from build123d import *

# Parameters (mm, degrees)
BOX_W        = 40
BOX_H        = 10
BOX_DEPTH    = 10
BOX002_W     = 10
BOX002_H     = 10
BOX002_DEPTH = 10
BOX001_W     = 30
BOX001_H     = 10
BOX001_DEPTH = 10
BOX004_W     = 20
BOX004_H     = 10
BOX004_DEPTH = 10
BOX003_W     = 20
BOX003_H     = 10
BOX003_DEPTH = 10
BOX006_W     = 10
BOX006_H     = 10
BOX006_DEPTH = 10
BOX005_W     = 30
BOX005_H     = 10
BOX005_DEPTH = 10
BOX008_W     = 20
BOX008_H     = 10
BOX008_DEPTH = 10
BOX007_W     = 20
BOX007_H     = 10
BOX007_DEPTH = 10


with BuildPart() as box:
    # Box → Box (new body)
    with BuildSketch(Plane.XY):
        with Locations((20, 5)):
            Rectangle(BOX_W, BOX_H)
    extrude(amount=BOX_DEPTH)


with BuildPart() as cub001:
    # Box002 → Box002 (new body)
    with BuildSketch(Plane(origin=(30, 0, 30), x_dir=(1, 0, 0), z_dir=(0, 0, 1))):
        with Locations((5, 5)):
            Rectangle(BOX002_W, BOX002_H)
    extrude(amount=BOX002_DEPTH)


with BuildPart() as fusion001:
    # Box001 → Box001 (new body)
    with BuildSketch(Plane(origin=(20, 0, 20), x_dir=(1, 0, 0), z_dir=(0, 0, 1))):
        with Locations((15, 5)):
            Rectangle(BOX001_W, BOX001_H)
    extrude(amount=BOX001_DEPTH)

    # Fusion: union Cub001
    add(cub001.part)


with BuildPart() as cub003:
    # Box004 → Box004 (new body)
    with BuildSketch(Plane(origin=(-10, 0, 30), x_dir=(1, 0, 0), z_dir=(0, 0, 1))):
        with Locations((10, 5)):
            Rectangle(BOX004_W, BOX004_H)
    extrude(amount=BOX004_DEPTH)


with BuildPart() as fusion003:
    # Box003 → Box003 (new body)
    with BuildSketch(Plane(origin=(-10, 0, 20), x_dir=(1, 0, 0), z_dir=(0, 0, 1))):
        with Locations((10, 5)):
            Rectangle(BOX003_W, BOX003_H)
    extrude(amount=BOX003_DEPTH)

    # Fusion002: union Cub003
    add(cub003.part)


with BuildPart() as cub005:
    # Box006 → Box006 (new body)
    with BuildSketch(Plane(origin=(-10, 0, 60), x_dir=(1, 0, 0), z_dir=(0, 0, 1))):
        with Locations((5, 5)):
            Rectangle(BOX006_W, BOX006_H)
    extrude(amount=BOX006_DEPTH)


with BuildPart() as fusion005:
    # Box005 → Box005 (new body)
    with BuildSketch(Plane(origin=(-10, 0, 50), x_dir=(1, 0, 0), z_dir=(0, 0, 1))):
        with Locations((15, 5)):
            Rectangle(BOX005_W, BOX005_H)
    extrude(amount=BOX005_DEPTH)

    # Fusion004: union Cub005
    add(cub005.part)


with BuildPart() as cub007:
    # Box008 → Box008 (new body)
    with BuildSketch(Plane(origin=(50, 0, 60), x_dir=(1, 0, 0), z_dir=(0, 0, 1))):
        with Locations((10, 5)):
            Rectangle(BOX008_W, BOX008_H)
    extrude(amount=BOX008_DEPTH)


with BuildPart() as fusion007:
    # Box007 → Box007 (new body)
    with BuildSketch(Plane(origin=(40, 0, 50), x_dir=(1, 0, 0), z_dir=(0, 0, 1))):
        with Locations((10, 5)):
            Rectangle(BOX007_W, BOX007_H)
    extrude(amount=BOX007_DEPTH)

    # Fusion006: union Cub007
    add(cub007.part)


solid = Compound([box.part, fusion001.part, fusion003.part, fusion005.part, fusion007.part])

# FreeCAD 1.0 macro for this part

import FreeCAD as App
import Part
import Sketcher

V = App.Vector


def add_polygon(sketch, points):
    """Adds a closed chain of lines whose ends are joined by coincident constraints."""
    first, n = sketch.GeometryCount, len(points)
    for a, b in zip(points, points[1:] + points[:1]):
        sketch.addGeometry(Part.LineSegment(App.Vector(*a, 0), App.Vector(*b, 0)), False)
    for i in range(n):
        sketch.addConstraint(Sketcher.Constraint("Coincident", first + i, 2, first + (i + 1) % n, 1))

doc = App.newDocument("Part")
params = doc.addObject("Spreadsheet::Sheet", "Params")
for row, (alias, value) in enumerate([
    ("sketch1_width", "40 mm"),
    ("sketch1_height", "10 mm"),
    ("pad1_length", "10 mm"),
    ("sketch2_width", "10 mm"),
    ("pad2_length", "10 mm"),
    ("sketch3_width", "30 mm"),
    ("sketch3_height", "10 mm"),
    ("pad3_length", "10 mm"),
    ("sketch4_width", "20 mm"),
    ("sketch4_height", "10 mm"),
    ("pad4_length", "10 mm"),
    ("sketch5_width", "20 mm"),
    ("sketch5_height", "10 mm"),
    ("pad5_length", "10 mm"),
    ("sketch6_width", "10 mm"),
    ("pad6_length", "10 mm"),
    ("sketch7_width", "30 mm"),
    ("sketch7_height", "10 mm"),
    ("pad7_length", "10 mm"),
    ("sketch8_width", "20 mm"),
    ("sketch8_height", "10 mm"),
    ("pad8_length", "10 mm"),
    ("sketch9_width", "20 mm"),
    ("sketch9_height", "10 mm"),
    ("pad9_length", "10 mm"),
], start=1):
    params.set(f"A{row}", alias)
    params.set(f"B{row}", "=" + value)
    params.setAlias(f"B{row}", alias)

body = doc.addObject("PartDesign::Body", "Body")

# Sketch on XY plane
sketch1 = body.newObject("Sketcher::SketchObject", "Sketch")
sketch1.AttachmentSupport = (doc.getObject("XY_Plane"), [""])
sketch1.MapMode = "FlatFace"
add_polygon(sketch1, [(0, 10), (0, 0), (40, 0), (40, 10)])  # lines 0-3
sketch1.addConstraint([
    Sketcher.Constraint("Vertical", 0),
    Sketcher.Constraint("Horizontal", 1),
    Sketcher.Constraint("Vertical", 2),
    Sketcher.Constraint("Horizontal", 3),
    Sketcher.Constraint("Coincident", 0, 2, -1, 1),
    Sketcher.Constraint("DistanceX", 1, 1, 1, 2, 40.0),
    Sketcher.Constraint("DistanceY", 0, 2, 0, 1, 10.0),
])
sketch1.setExpression("Constraints[9]", "Params.sketch1_width")
sketch1.setExpression("Constraints[10]", "Params.sketch1_height")
pad1 = body.newObject("PartDesign::Pad", "Pad")
pad1.Profile = sketch1
pad1.setExpression("Length", "Params.pad1_length")
body2 = doc.addObject("PartDesign::Body", "Body001")

# Sketch on XY plane
sketch2 = body2.newObject("Sketcher::SketchObject", "Sketch001")
sketch2.AttachmentSupport = (doc.getObject("XY_Plane001"), [""])
sketch2.MapMode = "FlatFace"
sketch2.AttachmentOffset = App.Placement(V(0, 0, 30), App.Rotation())
add_polygon(sketch2, [(30, 10), (30, 0), (40, 0), (40, 10)])  # lines 0-3
sketch2.addConstraint([
    Sketcher.Constraint("Vertical", 0),
    Sketcher.Constraint("Horizontal", 1),
    Sketcher.Constraint("Vertical", 2),
    Sketcher.Constraint("Horizontal", 3),
    Sketcher.Constraint("PointOnObject", 0, 2, -1),
    Sketcher.Constraint("Equal", 3, 0),
    Sketcher.Constraint("DistanceX", 1, 1, 1, 2, 10.0),
    Sketcher.Constraint("DistanceX", -1, 1, 0, 2, 30.0),
])
sketch2.setExpression("Constraints[10]", "Params.sketch2_width")
pad2 = body2.newObject("PartDesign::Pad", "Pad001")
pad2.Profile = sketch2
pad2.setExpression("Length", "Params.pad2_length")
body3 = doc.addObject("PartDesign::Body", "Body002")

# Sketch on XY plane
sketch3 = body3.newObject("Sketcher::SketchObject", "Sketch002")
sketch3.AttachmentSupport = (doc.getObject("XY_Plane002"), [""])
sketch3.MapMode = "FlatFace"
sketch3.AttachmentOffset = App.Placement(V(0, 0, 20), App.Rotation())
add_polygon(sketch3, [(20, 10), (20, 0), (50, 0), (50, 10)])  # lines 0-3
sketch3.addConstraint([
    Sketcher.Constraint("Vertical", 0),
    Sketcher.Constraint("Horizontal", 1),
    Sketcher.Constraint("Vertical", 2),
    Sketcher.Constraint("Horizontal", 3),
    Sketcher.Constraint("PointOnObject", 0, 2, -1),
    Sketcher.Constraint("DistanceX", 1, 1, 1, 2, 30.0),
    Sketcher.Constraint("DistanceY", 0, 2, 0, 1, 10.0),
    Sketcher.Constraint("DistanceX", -1, 1, 0, 2, 20.0),
])
sketch3.setExpression("Constraints[9]", "Params.sketch3_width")
sketch3.setExpression("Constraints[10]", "Params.sketch3_height")
pad3 = body3.newObject("PartDesign::Pad", "Pad002")
pad3.Profile = sketch3
pad3.setExpression("Length", "Params.pad3_length")
doc.recompute()

boolean = body3.newObject("PartDesign::Boolean", "Boolean")
boolean.Type = "Fuse"
boolean.addObjects([body2])
body4 = doc.addObject("PartDesign::Body", "Body003")

# Sketch on XY plane
sketch4 = body4.newObject("Sketcher::SketchObject", "Sketch003")
sketch4.AttachmentSupport = (doc.getObject("XY_Plane003"), [""])
sketch4.MapMode = "FlatFace"
sketch4.AttachmentOffset = App.Placement(V(0, 0, 30), App.Rotation())
add_polygon(sketch4, [(-10, 10), (-10, 0), (10, 0), (10, 10)])  # lines 0-3
sketch4.addConstraint([
    Sketcher.Constraint("Vertical", 0),
    Sketcher.Constraint("Horizontal", 1),
    Sketcher.Constraint("Vertical", 2),
    Sketcher.Constraint("Horizontal", 3),
    Sketcher.Constraint("Symmetric", 0, 2, 1, 2, -1, 1),
    Sketcher.Constraint("DistanceX", 1, 1, 1, 2, 20.0),
    Sketcher.Constraint("DistanceY", 0, 2, 0, 1, 10.0),
])
sketch4.setExpression("Constraints[9]", "Params.sketch4_width")
sketch4.setExpression("Constraints[10]", "Params.sketch4_height")
pad4 = body4.newObject("PartDesign::Pad", "Pad003")
pad4.Profile = sketch4
pad4.setExpression("Length", "Params.pad4_length")
body5 = doc.addObject("PartDesign::Body", "Body004")

# Sketch on XY plane
sketch5 = body5.newObject("Sketcher::SketchObject", "Sketch004")
sketch5.AttachmentSupport = (doc.getObject("XY_Plane004"), [""])
sketch5.MapMode = "FlatFace"
sketch5.AttachmentOffset = App.Placement(V(0, 0, 20), App.Rotation())
add_polygon(sketch5, [(-10, 10), (-10, 0), (10, 0), (10, 10)])  # lines 0-3
sketch5.addConstraint([
    Sketcher.Constraint("Vertical", 0),
    Sketcher.Constraint("Horizontal", 1),
    Sketcher.Constraint("Vertical", 2),
    Sketcher.Constraint("Horizontal", 3),
    Sketcher.Constraint("Symmetric", 0, 2, 1, 2, -1, 1),
    Sketcher.Constraint("DistanceX", 1, 1, 1, 2, 20.0),
    Sketcher.Constraint("DistanceY", 0, 2, 0, 1, 10.0),
])
sketch5.setExpression("Constraints[9]", "Params.sketch5_width")
sketch5.setExpression("Constraints[10]", "Params.sketch5_height")
pad5 = body5.newObject("PartDesign::Pad", "Pad004")
pad5.Profile = sketch5
pad5.setExpression("Length", "Params.pad5_length")
doc.recompute()

boolean2 = body5.newObject("PartDesign::Boolean", "Boolean001")
boolean2.Type = "Fuse"
boolean2.addObjects([body4])
body6 = doc.addObject("PartDesign::Body", "Body005")

# Sketch on XY plane
sketch6 = body6.newObject("Sketcher::SketchObject", "Sketch005")
sketch6.AttachmentSupport = (doc.getObject("XY_Plane005"), [""])
sketch6.MapMode = "FlatFace"
sketch6.AttachmentOffset = App.Placement(V(0, 0, 60), App.Rotation())
add_polygon(sketch6, [(-10, 10), (-10, 0), (0, 0), (0, 10)])  # lines 0-3
sketch6.addConstraint([
    Sketcher.Constraint("Vertical", 0),
    Sketcher.Constraint("Horizontal", 1),
    Sketcher.Constraint("Vertical", 2),
    Sketcher.Constraint("Horizontal", 3),
    Sketcher.Constraint("Coincident", 1, 2, -1, 1),
    Sketcher.Constraint("Equal", 3, 0),
    Sketcher.Constraint("DistanceX", 1, 1, 1, 2, 10.0),
])
sketch6.setExpression("Constraints[10]", "Params.sketch6_width")
pad6 = body6.newObject("PartDesign::Pad", "Pad005")
pad6.Profile = sketch6
pad6.setExpression("Length", "Params.pad6_length")
body7 = doc.addObject("PartDesign::Body", "Body006")

# Sketch on XY plane
sketch7 = body7.newObject("Sketcher::SketchObject", "Sketch006")
sketch7.AttachmentSupport = (doc.getObject("XY_Plane006"), [""])
sketch7.MapMode = "FlatFace"
sketch7.AttachmentOffset = App.Placement(V(0, 0, 50), App.Rotation())
add_polygon(sketch7, [(-10, 10), (-10, 0), (20, 0), (20, 10)])  # lines 0-3
sketch7.addConstraint([
    Sketcher.Constraint("Vertical", 0),
    Sketcher.Constraint("Horizontal", 1),
    Sketcher.Constraint("Vertical", 2),
    Sketcher.Constraint("Horizontal", 3),
    Sketcher.Constraint("PointOnObject", 0, 2, -1),
    Sketcher.Constraint("DistanceX", 1, 1, 1, 2, 30.0),
    Sketcher.Constraint("DistanceY", 0, 2, 0, 1, 10.0),
    Sketcher.Constraint("DistanceX", 0, 2, -1, 1, 10.0),
])
sketch7.setExpression("Constraints[9]", "Params.sketch7_width")
sketch7.setExpression("Constraints[10]", "Params.sketch7_height")
pad7 = body7.newObject("PartDesign::Pad", "Pad006")
pad7.Profile = sketch7
pad7.setExpression("Length", "Params.pad7_length")
doc.recompute()

boolean3 = body7.newObject("PartDesign::Boolean", "Boolean002")
boolean3.Type = "Fuse"
boolean3.addObjects([body6])
body8 = doc.addObject("PartDesign::Body", "Body007")

# Sketch on XY plane
sketch8 = body8.newObject("Sketcher::SketchObject", "Sketch007")
sketch8.AttachmentSupport = (doc.getObject("XY_Plane007"), [""])
sketch8.MapMode = "FlatFace"
sketch8.AttachmentOffset = App.Placement(V(0, 0, 60), App.Rotation())
add_polygon(sketch8, [(50, 10), (50, 0), (70, 0), (70, 10)])  # lines 0-3
sketch8.addConstraint([
    Sketcher.Constraint("Vertical", 0),
    Sketcher.Constraint("Horizontal", 1),
    Sketcher.Constraint("Vertical", 2),
    Sketcher.Constraint("Horizontal", 3),
    Sketcher.Constraint("PointOnObject", 0, 2, -1),
    Sketcher.Constraint("DistanceX", 1, 1, 1, 2, 20.0),
    Sketcher.Constraint("DistanceY", 0, 2, 0, 1, 10.0),
    Sketcher.Constraint("DistanceX", -1, 1, 0, 2, 50.0),
])
sketch8.setExpression("Constraints[9]", "Params.sketch8_width")
sketch8.setExpression("Constraints[10]", "Params.sketch8_height")
pad8 = body8.newObject("PartDesign::Pad", "Pad007")
pad8.Profile = sketch8
pad8.setExpression("Length", "Params.pad8_length")
body9 = doc.addObject("PartDesign::Body", "Body008")

# Sketch on XY plane
sketch9 = body9.newObject("Sketcher::SketchObject", "Sketch008")
sketch9.AttachmentSupport = (doc.getObject("XY_Plane008"), [""])
sketch9.MapMode = "FlatFace"
sketch9.AttachmentOffset = App.Placement(V(0, 0, 50), App.Rotation())
add_polygon(sketch9, [(40, 10), (40, 0), (60, 0), (60, 10)])  # lines 0-3
sketch9.addConstraint([
    Sketcher.Constraint("Vertical", 0),
    Sketcher.Constraint("Horizontal", 1),
    Sketcher.Constraint("Vertical", 2),
    Sketcher.Constraint("Horizontal", 3),
    Sketcher.Constraint("PointOnObject", 0, 2, -1),
    Sketcher.Constraint("DistanceX", 1, 1, 1, 2, 20.0),
    Sketcher.Constraint("DistanceY", 0, 2, 0, 1, 10.0),
    Sketcher.Constraint("DistanceX", -1, 1, 0, 2, 40.0),
])
sketch9.setExpression("Constraints[9]", "Params.sketch9_width")
sketch9.setExpression("Constraints[10]", "Params.sketch9_height")
pad9 = body9.newObject("PartDesign::Pad", "Pad008")
pad9.Profile = sketch9
pad9.setExpression("Length", "Params.pad9_length")
doc.recompute()

boolean4 = body9.newObject("PartDesign::Boolean", "Boolean003")
boolean4.Type = "Fuse"
boolean4.addObjects([body8])

doc.recompute()
